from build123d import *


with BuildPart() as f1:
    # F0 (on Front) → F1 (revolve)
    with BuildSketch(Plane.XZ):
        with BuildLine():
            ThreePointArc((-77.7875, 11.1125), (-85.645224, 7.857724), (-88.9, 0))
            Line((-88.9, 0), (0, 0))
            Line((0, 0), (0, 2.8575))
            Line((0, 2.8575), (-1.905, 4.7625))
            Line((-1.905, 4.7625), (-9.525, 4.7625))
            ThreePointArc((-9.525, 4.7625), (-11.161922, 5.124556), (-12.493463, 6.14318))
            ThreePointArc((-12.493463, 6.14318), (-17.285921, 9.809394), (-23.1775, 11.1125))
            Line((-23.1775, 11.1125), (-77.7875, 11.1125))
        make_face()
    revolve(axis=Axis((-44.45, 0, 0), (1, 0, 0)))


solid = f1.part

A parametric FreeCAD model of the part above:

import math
import FreeCAD as App
import Part
import Sketcher
Q = App.Units.Quantity

doc = App.newDocument("Part")
body = doc.addObject("PartDesign::Body", "Body")

# Sketch on XZ plane
sketch1 = doc.addObject("Sketcher::SketchObject", "Sketch")
body.addObject(sketch1)
sketch1.AttachmentSupport = (doc.XZ_Plane, [""])
sketch1.MapMode = "FlatFace"
sketch1.addGeometry(Part.ArcOfCircle(Part.Circle(App.Vector(-77.8, 0, 0), App.Vector(0, 0, 1), 11.1), math.radians(90), math.radians(180)), False)
sketch1.addGeometry(Part.LineSegment(App.Vector(-88.9, 0, 0), App.Vector(0, 0, 0)), False)
sketch1.addGeometry(Part.LineSegment(App.Vector(0, 0, 0), App.Vector(0, 2.9, 0)), False)
sketch1.addGeometry(Part.LineSegment(App.Vector(0, 2.9, 0), App.Vector(-1.9, 4.8, 0)), False)
sketch1.addGeometry(Part.LineSegment(App.Vector(-1.9, 4.8, 0), App.Vector(-9.5, 4.8, 0)), False)
sketch1.addGeometry(Part.ArcOfCircle(Part.Circle(App.Vector(-9.5, 8.6, 0), App.Vector(0, 0, 1), 3.9), math.radians(-140), math.radians(-90)), False)
sketch1.addGeometry(Part.ArcOfCircle(Part.Circle(App.Vector(-23.2, -2.9, 0), App.Vector(0, 0, 1), 14), math.radians(40), math.radians(90)), False)
sketch1.addGeometry(Part.LineSegment(App.Vector(-23.2, 11.1, 0), App.Vector(-77.8, 11.1, 0)), False)
sketch1.addConstraint(Sketcher.Constraint("Coincident", 0, 2, 1, 1))
sketch1.addConstraint(Sketcher.Constraint("Coincident", 1, 2, 2, 1))
sketch1.addConstraint(Sketcher.Constraint("Coincident", 2, 2, 3, 1))
sketch1.addConstraint(Sketcher.Constraint("Coincident", 3, 2, 4, 1))
sketch1.addConstraint(Sketcher.Constraint("Tangent", 4, 2, 5, 2))
sketch1.addConstraint(Sketcher.Constraint("Tangent", 5, 1, 6, 1))
sketch1.addConstraint(Sketcher.Constraint("Tangent", 6, 2, 7, 1))
sketch1.addConstraint(Sketcher.Constraint("Tangent", 7, 2, 0, 1))
sketch1.addConstraint(Sketcher.Constraint("Horizontal", 1))
sketch1.addConstraint(Sketcher.Constraint("Vertical", 2))
sketch1.addConstraint(Sketcher.Constraint("Horizontal", 4))
sketch1.addConstraint(Sketcher.Constraint("Horizontal", 7))
sketch1.addConstraint(Sketcher.Constraint("Coincident", 1, 2, -1, 1))
sketch1.addConstraint(Sketcher.Constraint("PointOnObject", 0, 3, -1))
sketch1.addConstraint(Sketcher.Constraint("Radius", 6, Q("0.5499998 in")))
sketch1.addConstraint(Sketcher.Constraint("DistanceX", 1, 1, 1, 2, Q("3.5 in")))
sketch1.addConstraint(Sketcher.Constraint("DistanceX", 4, 2, 4, 1, Q("0.3 in")))
sketch1.addConstraint(Sketcher.Constraint("Angle", 3, Q("135 deg")))
sketch1.addConstraint(Sketcher.Constraint("Radius", 0, Q("0.4375 in")))
sketch1.addConstraint(Sketcher.Constraint("DistanceX", 7, 2, 7, 1, Q("2.15 in")))
sketch1.addConstraint(Sketcher.Constraint("DistanceY", 6, 3, 3, 2, Q("0.2999998 in")))
sketch1.addConstraint(Sketcher.Constraint("DistanceY", 2, 1, 2, 2, Q("0.1125 in")))
revolution = doc.addObject("PartDesign::Revolution", "Revolution")
body.addObject(revolution)
revolution.Profile = sketch1
revolution.ReferenceAxis = (sketch1, ["H_Axis"])
revolution.Angle = 360

doc.recompute()
